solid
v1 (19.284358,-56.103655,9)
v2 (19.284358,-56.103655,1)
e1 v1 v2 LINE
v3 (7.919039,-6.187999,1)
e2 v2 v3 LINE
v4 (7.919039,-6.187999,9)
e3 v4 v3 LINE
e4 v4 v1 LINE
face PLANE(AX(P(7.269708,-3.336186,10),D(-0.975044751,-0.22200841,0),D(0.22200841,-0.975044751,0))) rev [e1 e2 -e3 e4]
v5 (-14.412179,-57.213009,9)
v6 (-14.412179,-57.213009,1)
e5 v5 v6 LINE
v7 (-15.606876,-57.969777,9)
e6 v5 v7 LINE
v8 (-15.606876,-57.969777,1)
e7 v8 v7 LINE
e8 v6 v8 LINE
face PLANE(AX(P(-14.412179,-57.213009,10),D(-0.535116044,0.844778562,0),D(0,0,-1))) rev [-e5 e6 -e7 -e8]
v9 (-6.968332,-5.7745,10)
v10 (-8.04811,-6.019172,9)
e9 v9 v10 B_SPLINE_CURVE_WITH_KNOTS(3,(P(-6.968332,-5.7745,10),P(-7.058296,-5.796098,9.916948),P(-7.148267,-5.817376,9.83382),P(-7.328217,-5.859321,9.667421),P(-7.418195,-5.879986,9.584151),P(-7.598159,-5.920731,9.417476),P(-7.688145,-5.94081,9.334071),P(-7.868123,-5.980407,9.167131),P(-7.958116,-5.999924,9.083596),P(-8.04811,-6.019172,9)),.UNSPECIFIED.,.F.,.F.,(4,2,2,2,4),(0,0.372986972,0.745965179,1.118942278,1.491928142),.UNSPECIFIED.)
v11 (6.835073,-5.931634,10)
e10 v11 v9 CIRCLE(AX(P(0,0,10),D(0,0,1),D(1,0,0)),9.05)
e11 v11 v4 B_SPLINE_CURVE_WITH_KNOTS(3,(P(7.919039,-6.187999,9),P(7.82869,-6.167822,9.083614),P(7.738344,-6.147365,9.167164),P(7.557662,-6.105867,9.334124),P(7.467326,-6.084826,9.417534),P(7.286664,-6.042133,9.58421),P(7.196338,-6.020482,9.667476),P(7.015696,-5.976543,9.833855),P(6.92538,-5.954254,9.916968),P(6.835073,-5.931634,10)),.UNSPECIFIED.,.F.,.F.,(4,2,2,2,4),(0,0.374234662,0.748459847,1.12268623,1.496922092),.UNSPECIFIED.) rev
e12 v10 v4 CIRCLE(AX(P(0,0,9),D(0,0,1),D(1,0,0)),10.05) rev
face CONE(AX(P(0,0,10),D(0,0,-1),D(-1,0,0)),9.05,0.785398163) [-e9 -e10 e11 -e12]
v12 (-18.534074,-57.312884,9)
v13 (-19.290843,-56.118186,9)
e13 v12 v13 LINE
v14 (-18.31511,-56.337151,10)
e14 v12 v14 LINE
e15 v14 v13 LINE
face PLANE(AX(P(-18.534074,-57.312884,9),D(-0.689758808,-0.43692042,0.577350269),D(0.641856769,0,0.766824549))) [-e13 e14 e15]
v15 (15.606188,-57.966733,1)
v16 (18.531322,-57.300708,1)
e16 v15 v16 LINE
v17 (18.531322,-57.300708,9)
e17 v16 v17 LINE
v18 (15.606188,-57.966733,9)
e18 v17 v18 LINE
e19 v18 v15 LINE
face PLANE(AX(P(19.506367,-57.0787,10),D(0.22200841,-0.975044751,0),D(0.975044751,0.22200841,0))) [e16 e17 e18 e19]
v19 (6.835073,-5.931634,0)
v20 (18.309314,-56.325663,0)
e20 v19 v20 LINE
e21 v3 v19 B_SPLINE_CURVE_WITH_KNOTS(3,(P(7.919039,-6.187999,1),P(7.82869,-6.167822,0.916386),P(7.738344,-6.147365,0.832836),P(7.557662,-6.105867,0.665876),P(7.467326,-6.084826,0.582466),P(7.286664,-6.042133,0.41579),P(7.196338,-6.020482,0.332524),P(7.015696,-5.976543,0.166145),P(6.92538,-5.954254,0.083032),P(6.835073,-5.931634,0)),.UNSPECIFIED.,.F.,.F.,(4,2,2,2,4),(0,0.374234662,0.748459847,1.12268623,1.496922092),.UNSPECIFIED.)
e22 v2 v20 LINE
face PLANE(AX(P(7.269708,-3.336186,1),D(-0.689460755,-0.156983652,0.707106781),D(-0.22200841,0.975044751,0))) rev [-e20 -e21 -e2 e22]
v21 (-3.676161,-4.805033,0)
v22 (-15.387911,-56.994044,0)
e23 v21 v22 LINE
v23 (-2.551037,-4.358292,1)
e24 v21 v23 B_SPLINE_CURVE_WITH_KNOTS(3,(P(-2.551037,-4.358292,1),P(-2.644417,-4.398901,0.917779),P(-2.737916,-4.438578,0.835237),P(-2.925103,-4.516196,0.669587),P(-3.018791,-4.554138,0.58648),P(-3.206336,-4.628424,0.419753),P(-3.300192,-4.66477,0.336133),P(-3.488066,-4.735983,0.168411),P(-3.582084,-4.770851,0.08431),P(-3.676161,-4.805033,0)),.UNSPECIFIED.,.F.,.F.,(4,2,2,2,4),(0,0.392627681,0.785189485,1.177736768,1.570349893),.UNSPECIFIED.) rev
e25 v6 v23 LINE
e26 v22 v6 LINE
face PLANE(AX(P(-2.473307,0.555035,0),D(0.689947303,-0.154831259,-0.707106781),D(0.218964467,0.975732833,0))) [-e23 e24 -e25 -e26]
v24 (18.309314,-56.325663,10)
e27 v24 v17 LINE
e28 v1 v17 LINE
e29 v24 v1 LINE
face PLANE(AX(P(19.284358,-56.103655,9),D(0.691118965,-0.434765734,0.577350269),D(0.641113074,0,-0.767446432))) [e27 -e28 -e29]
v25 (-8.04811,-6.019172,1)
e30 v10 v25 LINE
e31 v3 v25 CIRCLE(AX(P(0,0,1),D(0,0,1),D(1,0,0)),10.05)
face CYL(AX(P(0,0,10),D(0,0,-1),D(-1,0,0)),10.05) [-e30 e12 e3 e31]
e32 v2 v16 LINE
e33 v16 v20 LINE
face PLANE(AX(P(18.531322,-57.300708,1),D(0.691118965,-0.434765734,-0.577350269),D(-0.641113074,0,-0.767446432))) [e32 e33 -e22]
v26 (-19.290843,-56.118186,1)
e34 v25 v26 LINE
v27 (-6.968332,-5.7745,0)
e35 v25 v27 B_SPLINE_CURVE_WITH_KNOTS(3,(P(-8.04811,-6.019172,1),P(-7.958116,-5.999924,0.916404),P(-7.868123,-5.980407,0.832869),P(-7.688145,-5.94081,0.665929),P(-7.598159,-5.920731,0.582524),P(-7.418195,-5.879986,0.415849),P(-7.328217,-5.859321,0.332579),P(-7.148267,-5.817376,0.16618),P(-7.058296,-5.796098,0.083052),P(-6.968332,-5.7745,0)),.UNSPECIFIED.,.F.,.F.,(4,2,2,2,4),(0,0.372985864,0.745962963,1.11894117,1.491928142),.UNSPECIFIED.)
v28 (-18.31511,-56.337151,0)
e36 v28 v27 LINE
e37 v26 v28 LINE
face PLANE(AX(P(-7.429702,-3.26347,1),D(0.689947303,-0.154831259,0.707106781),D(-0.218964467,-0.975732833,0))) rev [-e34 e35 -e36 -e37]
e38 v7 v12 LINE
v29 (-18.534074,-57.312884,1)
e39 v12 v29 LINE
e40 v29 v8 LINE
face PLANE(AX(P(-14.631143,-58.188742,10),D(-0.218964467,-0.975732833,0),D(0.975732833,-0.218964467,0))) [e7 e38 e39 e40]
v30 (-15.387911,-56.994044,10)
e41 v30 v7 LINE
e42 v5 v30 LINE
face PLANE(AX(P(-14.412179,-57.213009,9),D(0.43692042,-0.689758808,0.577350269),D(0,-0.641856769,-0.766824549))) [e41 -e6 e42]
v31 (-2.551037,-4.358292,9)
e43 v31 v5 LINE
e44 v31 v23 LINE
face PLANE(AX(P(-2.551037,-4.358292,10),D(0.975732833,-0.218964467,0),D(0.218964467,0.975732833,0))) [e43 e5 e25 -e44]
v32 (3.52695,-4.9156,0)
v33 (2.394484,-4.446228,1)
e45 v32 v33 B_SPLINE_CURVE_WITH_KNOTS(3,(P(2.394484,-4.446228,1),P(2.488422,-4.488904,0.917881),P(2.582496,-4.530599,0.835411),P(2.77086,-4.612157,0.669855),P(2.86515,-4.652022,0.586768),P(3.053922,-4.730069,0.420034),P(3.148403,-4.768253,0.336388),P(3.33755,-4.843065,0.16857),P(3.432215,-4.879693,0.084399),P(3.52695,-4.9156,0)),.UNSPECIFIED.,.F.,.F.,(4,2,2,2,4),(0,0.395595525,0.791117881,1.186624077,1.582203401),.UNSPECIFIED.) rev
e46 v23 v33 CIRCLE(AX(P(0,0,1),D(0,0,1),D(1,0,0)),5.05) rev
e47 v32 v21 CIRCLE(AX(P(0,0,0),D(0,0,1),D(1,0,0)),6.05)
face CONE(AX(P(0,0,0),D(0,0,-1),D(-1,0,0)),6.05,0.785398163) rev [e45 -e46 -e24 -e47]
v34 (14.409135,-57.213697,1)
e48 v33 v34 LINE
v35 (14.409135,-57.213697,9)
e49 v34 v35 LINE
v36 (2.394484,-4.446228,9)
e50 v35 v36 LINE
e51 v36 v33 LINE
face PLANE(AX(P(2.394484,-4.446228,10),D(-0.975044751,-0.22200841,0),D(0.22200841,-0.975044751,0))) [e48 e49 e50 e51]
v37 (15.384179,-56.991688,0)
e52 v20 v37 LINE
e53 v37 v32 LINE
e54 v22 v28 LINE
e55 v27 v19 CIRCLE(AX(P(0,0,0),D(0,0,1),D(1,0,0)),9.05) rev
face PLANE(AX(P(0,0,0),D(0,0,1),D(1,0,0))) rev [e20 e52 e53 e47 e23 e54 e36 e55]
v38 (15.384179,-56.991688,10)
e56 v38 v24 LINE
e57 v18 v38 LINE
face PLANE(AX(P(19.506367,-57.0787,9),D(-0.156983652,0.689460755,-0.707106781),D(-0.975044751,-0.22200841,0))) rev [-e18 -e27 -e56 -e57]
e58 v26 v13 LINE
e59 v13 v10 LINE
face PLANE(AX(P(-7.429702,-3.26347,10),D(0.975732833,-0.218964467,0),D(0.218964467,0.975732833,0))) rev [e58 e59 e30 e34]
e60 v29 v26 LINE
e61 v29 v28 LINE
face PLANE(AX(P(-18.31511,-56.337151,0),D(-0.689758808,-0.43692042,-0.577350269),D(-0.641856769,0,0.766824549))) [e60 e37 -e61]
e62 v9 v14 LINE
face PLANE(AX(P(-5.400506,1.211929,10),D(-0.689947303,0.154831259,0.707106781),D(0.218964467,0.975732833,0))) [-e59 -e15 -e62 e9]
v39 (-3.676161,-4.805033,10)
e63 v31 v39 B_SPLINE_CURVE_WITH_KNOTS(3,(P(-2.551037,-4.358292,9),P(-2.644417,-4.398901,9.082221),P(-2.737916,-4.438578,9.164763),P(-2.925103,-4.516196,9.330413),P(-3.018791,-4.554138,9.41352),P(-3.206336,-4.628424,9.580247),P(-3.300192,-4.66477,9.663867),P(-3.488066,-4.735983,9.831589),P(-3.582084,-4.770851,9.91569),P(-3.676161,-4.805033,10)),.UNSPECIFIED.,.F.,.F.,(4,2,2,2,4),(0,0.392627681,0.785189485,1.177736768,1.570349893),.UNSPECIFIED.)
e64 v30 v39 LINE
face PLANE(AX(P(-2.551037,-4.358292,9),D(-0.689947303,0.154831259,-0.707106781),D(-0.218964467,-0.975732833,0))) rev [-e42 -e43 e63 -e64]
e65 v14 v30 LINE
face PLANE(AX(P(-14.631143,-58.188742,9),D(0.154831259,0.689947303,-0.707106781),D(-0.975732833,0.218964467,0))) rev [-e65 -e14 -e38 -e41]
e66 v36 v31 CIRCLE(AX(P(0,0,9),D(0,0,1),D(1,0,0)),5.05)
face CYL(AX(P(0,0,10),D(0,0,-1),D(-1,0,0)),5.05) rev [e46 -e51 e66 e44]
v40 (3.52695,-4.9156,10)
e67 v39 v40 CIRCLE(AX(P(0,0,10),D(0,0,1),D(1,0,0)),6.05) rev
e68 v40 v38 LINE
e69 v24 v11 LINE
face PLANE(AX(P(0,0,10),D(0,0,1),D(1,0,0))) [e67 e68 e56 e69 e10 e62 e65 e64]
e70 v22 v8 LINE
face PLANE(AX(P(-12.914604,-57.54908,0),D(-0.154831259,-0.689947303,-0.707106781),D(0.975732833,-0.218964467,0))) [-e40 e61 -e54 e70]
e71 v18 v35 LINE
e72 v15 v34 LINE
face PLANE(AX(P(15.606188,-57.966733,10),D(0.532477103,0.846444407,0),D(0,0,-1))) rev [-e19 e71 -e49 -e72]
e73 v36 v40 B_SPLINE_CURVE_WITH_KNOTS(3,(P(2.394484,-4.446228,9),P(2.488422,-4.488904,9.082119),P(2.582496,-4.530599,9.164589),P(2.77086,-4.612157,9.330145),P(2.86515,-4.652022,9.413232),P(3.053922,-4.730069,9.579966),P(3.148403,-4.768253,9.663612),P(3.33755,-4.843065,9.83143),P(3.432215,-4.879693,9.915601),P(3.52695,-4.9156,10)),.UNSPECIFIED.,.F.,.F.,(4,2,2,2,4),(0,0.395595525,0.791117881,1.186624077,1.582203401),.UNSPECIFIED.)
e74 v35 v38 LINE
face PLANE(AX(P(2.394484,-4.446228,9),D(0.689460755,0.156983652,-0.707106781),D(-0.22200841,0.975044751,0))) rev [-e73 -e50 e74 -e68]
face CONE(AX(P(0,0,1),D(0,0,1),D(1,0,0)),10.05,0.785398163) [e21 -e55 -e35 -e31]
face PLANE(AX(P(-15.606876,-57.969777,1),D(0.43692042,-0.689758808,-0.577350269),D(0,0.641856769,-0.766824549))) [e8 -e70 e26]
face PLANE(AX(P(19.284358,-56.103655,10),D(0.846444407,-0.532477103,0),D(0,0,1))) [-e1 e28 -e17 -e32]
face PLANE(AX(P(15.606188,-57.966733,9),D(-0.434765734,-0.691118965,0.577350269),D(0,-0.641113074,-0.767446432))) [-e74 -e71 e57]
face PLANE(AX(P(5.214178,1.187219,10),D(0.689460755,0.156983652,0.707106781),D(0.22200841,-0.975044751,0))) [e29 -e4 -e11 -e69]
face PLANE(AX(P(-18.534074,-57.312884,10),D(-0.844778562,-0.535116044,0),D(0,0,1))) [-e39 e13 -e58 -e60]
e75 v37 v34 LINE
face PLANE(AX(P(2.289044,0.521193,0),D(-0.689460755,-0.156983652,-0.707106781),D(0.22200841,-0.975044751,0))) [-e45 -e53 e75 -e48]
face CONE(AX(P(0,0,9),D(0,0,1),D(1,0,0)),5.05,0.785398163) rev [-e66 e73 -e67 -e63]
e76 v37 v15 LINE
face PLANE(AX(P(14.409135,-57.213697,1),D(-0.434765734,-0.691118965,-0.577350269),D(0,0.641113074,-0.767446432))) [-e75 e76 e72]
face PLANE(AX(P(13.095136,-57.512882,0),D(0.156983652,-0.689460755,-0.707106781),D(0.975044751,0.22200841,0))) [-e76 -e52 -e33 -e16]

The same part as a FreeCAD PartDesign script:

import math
import FreeCAD as App
import Part
import Sketcher
from FreeCAD import Vector


def edges_at(feature, points):
    """Names of the edges that pass closest to the given points."""
    edges = feature.Shape.Edges
    near = lambda p: min(range(len(edges)), key=lambda i: edges[i].distToShape(Part.Vertex(*p))[0])
    return sorted({f"Edge{near(p) + 1}" for p in points})

doc = App.newDocument("Part")
body = doc.addObject("PartDesign::Body", "Body")

sketch1 = body.newObject("Sketcher::SketchObject", "Sketch")
sketch1.AttachmentSupport = (doc.getObject("XY_Plane"), [""])
sketch1.MapMode = "FlatFace"
sketch1.addGeometry([
    Part.LineSegment(Vector(2.4, -4.4, 0), Vector(14.6, -58.2, 0)),
    Part.LineSegment(Vector(14.6, -58.2, 0), Vector(19.5, -57.1, 0)),
    Part.LineSegment(Vector(19.5, -57.1, 0), Vector(7.9, -6.2, 0)),
    Part.ArcOfCircle(Part.Circle(Vector(0, 0, 0), Vector(0, 0, 1), 10.1), math.radians(-38), math.radians(217)),
    Part.LineSegment(Vector(-8, -6, 0), Vector(-19.5, -57.1, 0)),
    Part.LineSegment(Vector(-19.5, -57.1, 0), Vector(-14.6, -58.2, 0)),
    Part.LineSegment(Vector(-14.6, -58.2, 0), Vector(-2.6, -4.4, 0)),
    Part.ArcOfCircle(Part.Circle(Vector(0, 0, 0), Vector(0, 0, 1), 5), math.radians(-62), math.radians(240)),
], False)
sketch1.addConstraint([
    Sketcher.Constraint("Coincident", 0, 2, 1, 1),
    Sketcher.Constraint("Coincident", 1, 2, 2, 1),
    Sketcher.Constraint("Coincident", 2, 2, 3, 1),
    Sketcher.Constraint("Coincident", 3, 2, 4, 1),
    Sketcher.Constraint("Coincident", 4, 2, 5, 1),
    Sketcher.Constraint("Coincident", 5, 2, 6, 1),
    Sketcher.Constraint("Coincident", 6, 2, 7, 2),
    Sketcher.Constraint("Coincident", 7, 1, 0, 1),
    Sketcher.Constraint("Coincident", 3, 3, -1, 1),
    Sketcher.Constraint("Coincident", 7, 3, -1, 1),
    Sketcher.Constraint("Symmetric", 0, 2, 5, 2, -2),
    Sketcher.Constraint("Perpendicular", 0, 1),
    Sketcher.Constraint("Perpendicular", 1, 2),
    Sketcher.Constraint("Perpendicular", 4, 5),
    Sketcher.Constraint("Perpendicular", 5, 6),
    Sketcher.Constraint("Equal", 1, 5),
    Sketcher.Constraint("Radius", 3, 10.05),
    Sketcher.Constraint("Radius", 7, 5.05),
    Sketcher.Constraint("Distance", 1, 5.0),
    Sketcher.Constraint("DistanceY", 2, 2, -1, 1, 6.187999),
    Sketcher.Constraint("DistanceY", 1, 2, -1, 1, 57.0787),
    Sketcher.Constraint("Distance", 6, 55.169251),
    Sketcher.Constraint("DistanceY", 0, 2, -1, 1, 58.188742),
])
pad1 = body.newObject("PartDesign::Pad", "Pad")
pad1.Profile = sketch1
pad1.Length = 10
doc.recompute()

chamfer = body.newObject("PartDesign::Chamfer", "Chamfer")
chamfer.Base = (pad1, edges_at(pad1, [
    (19.506, -57.079, 5),
    (14.631, -58.189, 5),
    (-14.631, -58.189, 5),
    (-8.591, -31.274, 10),
    (-19.51, -57.094, 5),
    (0.09, 5.049, 10),
    (8.513, -31.317, 10),
    (17.069, -57.634, 10),
    (13.713, -31.633, 10),
    (0.106, 10.049, 10),
    (-13.779, -31.557, 10),
    (0.106, 10.049, 0),
    (13.713, -31.633, 0),
    (17.069, -57.634, 0),
    (8.513, -31.317, 0),
    (0.09, 5.049, 0),
    (-17.07, -57.641, 10),
    (-8.591, -31.274, 0),
    (-17.07, -57.641, 0),
    (-13.779, -31.557, 0),
]))
chamfer.Size = 1

doc.recompute()
